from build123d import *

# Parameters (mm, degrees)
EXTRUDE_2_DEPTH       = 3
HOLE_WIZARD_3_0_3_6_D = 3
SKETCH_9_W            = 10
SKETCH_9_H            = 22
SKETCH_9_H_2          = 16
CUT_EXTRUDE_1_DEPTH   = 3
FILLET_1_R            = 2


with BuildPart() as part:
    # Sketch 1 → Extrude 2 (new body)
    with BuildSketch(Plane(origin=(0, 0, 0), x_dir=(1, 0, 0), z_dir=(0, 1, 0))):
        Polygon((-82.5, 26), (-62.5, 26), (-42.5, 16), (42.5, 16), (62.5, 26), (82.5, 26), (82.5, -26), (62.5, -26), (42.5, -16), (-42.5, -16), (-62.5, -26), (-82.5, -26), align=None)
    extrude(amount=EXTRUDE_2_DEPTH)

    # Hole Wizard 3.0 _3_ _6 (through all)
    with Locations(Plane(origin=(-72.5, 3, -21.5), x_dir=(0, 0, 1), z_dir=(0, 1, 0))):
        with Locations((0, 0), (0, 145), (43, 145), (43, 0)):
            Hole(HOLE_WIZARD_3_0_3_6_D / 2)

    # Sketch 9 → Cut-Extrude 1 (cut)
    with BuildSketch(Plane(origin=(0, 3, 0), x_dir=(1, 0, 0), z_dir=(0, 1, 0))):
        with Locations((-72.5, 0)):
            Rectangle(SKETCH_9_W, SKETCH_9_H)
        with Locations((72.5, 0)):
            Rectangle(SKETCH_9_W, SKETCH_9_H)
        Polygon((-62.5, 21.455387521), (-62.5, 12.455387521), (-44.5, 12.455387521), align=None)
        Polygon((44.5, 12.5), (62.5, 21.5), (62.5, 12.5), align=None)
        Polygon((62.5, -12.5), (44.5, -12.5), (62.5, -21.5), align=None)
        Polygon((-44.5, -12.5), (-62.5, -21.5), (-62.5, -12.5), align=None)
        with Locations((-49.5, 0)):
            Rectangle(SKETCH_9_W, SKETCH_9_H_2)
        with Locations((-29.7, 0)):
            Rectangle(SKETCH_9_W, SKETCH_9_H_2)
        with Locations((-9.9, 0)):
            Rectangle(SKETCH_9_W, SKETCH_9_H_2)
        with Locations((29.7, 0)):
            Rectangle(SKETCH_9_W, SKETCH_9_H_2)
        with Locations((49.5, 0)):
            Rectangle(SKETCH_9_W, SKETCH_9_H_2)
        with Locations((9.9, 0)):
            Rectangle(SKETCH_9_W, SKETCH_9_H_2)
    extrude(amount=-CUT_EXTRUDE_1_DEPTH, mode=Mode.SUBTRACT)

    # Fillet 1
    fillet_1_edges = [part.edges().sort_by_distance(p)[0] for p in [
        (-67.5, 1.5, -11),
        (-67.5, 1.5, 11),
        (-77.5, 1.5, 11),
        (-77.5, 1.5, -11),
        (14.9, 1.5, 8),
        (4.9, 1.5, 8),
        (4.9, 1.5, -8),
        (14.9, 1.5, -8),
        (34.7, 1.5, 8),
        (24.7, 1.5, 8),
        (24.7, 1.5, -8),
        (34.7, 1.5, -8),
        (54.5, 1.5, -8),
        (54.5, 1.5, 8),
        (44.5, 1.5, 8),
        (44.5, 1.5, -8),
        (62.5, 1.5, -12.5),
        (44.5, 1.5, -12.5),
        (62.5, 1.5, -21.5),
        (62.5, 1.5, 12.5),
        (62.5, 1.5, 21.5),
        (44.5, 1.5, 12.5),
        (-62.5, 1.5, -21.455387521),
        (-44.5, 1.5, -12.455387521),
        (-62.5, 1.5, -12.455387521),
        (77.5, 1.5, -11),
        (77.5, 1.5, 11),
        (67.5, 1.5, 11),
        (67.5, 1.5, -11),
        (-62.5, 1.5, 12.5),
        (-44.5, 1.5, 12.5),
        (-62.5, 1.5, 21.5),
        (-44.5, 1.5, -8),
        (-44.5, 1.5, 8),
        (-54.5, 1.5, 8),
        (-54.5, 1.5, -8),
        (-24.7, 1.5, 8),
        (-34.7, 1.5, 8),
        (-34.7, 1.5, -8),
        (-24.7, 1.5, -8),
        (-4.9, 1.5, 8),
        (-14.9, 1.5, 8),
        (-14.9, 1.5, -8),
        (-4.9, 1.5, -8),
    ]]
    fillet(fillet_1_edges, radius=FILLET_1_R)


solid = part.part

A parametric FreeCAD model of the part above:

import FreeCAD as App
import Part
import Sketcher

V = App.Vector
Q = App.Units.Quantity


def edges_at(feature, points):
    """Names of the edges that pass closest to the given points."""
    edges = feature.Shape.Edges
    near = lambda p: min(range(len(edges)), key=lambda i: edges[i].distToShape(Part.Vertex(*p))[0])
    return sorted({f"Edge{near(p) + 1}" for p in points})


def add_polygon(sketch, points):
    """Adds a closed chain of lines whose ends are joined by coincident constraints."""
    first, n = sketch.GeometryCount, len(points)
    for a, b in zip(points, points[1:] + points[:1]):
        sketch.addGeometry(Part.LineSegment(App.Vector(*a, 0), App.Vector(*b, 0)), False)
    for i in range(n):
        sketch.addConstraint(Sketcher.Constraint("Coincident", first + i, 2, first + (i + 1) % n, 1))

doc = App.newDocument("Part")
params = doc.addObject("Spreadsheet::Sheet", "Params")
for row, (alias, value) in enumerate([
    ("sketch1_width", "20 mm"),
    ("sketch1_width2", "85 mm"),
    ("sketch1_height", "52 mm"),
    ("pad1_length", "3 mm"),
    ("sketch2_diameter", "3 mm"),
    ("hole_diameter", "3 mm"),
    ("sketch3_width", "10 mm"),
    ("sketch3_width2", "18 mm"),
    ("sketch3_height", "22 mm"),
    ("sketch3_height2", "9 mm"),
    ("sketch3_height3", "16 mm"),
    ("pocket1_length", "3 mm"),
    ("fillet_radius", "2 mm"),
], start=1):
    params.set(f"A{row}", alias)
    params.set(f"B{row}", "=" + value)
    params.setAlias(f"B{row}", alias)

body = doc.addObject("PartDesign::Body", "Body")

sketch1 = doc.addObject("Sketcher::SketchObject", "Sketch")
body.addObject(sketch1)
sketch1.AttachmentSupport = (doc.XZ_Plane, [""])
sketch1.MapMode = "FlatFace"
add_polygon(sketch1, [(-62, -26), (-82, -26), (-82, 26), (-62, 26), (-42, 16), (42, 16), (62, 26), (82, 26), (82, -26), (62, -26), (42, -16), (-42, -16)])
sketch1.addConstraint([
    Sketcher.Constraint("Horizontal", 0),
    Sketcher.Constraint("Vertical", 1),
    Sketcher.Constraint("Horizontal", 2),
    Sketcher.Constraint("Horizontal", 4),
    Sketcher.Constraint("Horizontal", 6),
    Sketcher.Constraint("Vertical", 7),
    Sketcher.Constraint("Horizontal", 8),
    Sketcher.Constraint("Horizontal", 10),
    Sketcher.Constraint("Symmetric", 0, 2, 6, 2, -1, 1),
    Sketcher.Constraint("Symmetric", 2, 2, 8, 2, -1, 1),
    Sketcher.Constraint("Symmetric", 3, 2, 9, 2, -1, 1),
    Sketcher.Constraint("Symmetric", 2, 2, 5, 2, -2),
    Sketcher.Constraint("Parallel", 5, 11),
    Sketcher.Constraint("Vertical", 4, 2, 9, 2),
    Sketcher.Constraint("Vertical", 3, 2, 10, 2),
    Sketcher.Constraint("DistanceX", 0, 2, 0, 1, Q("20 mm")),
    Sketcher.Constraint("DistanceX", 4, 1, 4, 2, Q("85 mm")),
    Sketcher.Constraint("DistanceY", 1, 1, 1, 2, Q("52 mm")),
    Sketcher.Constraint("DistanceY", -1, 1, 3, 2, Q("16 mm")),
    Sketcher.Constraint("DistanceX", 2, 2, 3, 2, Q("20 mm")),
])
sketch1.setExpression("Constraints[27]", "Params.sketch1_width")
sketch1.setExpression("Constraints[28]", "Params.sketch1_width2")
sketch1.setExpression("Constraints[29]", "Params.sketch1_height")
pad1 = doc.addObject("PartDesign::Pad", "Pad")
body.addObject(pad1)
pad1.Profile = sketch1
pad1.setExpression("Length", "Params.pad1_length")
pad1.Reversed = True

sketch2 = doc.addObject("Sketcher::SketchObject", "Sketch001")
body.addObject(sketch2)
sketch2.AttachmentSupport = (doc.XZ_Plane, [""])
sketch2.MapMode = "FlatFace"
sketch2.AttachmentOffset = App.Placement(V(0, 0, -3), App.Rotation())
sketch2.addGeometry([
    Part.Circle(V(-72.5, -21.5, 0), V(0, 0, 1), 1.5),
    Part.Circle(V(72.5, -21.5, 0), V(0, 0, 1), 1.5),
    Part.Circle(V(72.5, 21.5, 0), V(0, 0, 1), 1.5),
    Part.Circle(V(-72.5, 21.5, 0), V(0, 0, 1), 1.5),
], False)
sketch2.addConstraint([
    Sketcher.Constraint("Equal", 0, 1),
    Sketcher.Constraint("Equal", 1, 2),
    Sketcher.Constraint("Equal", 2, 3),
    Sketcher.Constraint("Symmetric", 0, 3, 2, 3, -1, 1),
    Sketcher.Constraint("Symmetric", 1, 3, 3, 3, -1, 1),
    Sketcher.Constraint("Symmetric", 0, 3, 1, 3, -2),
    Sketcher.Constraint("Diameter", 0, Q("3 mm")),
    Sketcher.Constraint("DistanceX", 0, 3, 1, 3, Q("145 mm")),
    Sketcher.Constraint("DistanceY", 1, 3, 2, 3, Q("43 mm")),
])
sketch2.setExpression("Constraints[6]", "Params.sketch2_diameter")
doc.recompute()
hole = doc.addObject("PartDesign::Hole", "Hole")
body.addObject(hole)
hole.Profile = sketch2
hole.ThreadType = "None"
hole.setExpression("Diameter", "Params.hole_diameter")
hole.DepthType = "ThroughAll"
hole.Reversed = True

sketch3 = doc.addObject("Sketcher::SketchObject", "Sketch002")
body.addObject(sketch3)
sketch3.AttachmentSupport = (doc.XZ_Plane, [""])
sketch3.MapMode = "FlatFace"
sketch3.AttachmentOffset = App.Placement(V(0, 0, -3), App.Rotation())
add_polygon(sketch3, [(-78, -11), (-78, 11), (-68, 11), (-68, -11)])
add_polygon(sketch3, [(68, -11), (68, 11), (78, 11), (78, -11)])
add_polygon(sketch3, [(-62, -21), (-62, -12), (-44, -12)])
add_polygon(sketch3, [(62, -22), (44, -12), (62, -12)])
add_polygon(sketch3, [(62, 12), (44, 12), (62, 22)])
add_polygon(sketch3, [(-62, 22), (-44, 12), (-62, 12)])
add_polygon(sketch3, [(-54, -8), (-54, 8), (-44, 8), (-44, -8)])
add_polygon(sketch3, [(-35, -8), (-35, 8), (-25, 8), (-25, -8)])
add_polygon(sketch3, [(-15, -8), (-15, 8), (-5, 8), (-5, -8)])
add_polygon(sketch3, [(25, -8), (25, 8), (35, 8), (35, -8)])
add_polygon(sketch3, [(44, -8), (44, 8), (54, 8), (54, -8)])
add_polygon(sketch3, [(5, -8), (5, 8), (15, 8), (15, -8)])
sketch3.addConstraint([
    Sketcher.Constraint("Vertical", 0),
    Sketcher.Constraint("Horizontal", 1),
    Sketcher.Constraint("Vertical", 2),
    Sketcher.Constraint("Horizontal", 3),
    Sketcher.Constraint("Vertical", 4),
    Sketcher.Constraint("Horizontal", 5),
    Sketcher.Constraint("Vertical", 6),
    Sketcher.Constraint("Horizontal", 7),
    Sketcher.Constraint("Vertical", 8),
    Sketcher.Constraint("Horizontal", 9),
    Sketcher.Constraint("Horizontal", 12),
    Sketcher.Constraint("Vertical", 13),
    Sketcher.Constraint("Horizontal", 14),
    Sketcher.Constraint("Vertical", 16),
    Sketcher.Constraint("Horizontal", 18),
    Sketcher.Constraint("Vertical", 19),
    Sketcher.Constraint("Vertical", 20),
    Sketcher.Constraint("Horizontal", 21),
    Sketcher.Constraint("Vertical", 22),
    Sketcher.Constraint("Horizontal", 23),
    Sketcher.Constraint("Vertical", 24),
    Sketcher.Constraint("Horizontal", 25),
    Sketcher.Constraint("Vertical", 26),
    Sketcher.Constraint("Horizontal", 27),
    Sketcher.Constraint("Vertical", 28),
    Sketcher.Constraint("Horizontal", 29),
    Sketcher.Constraint("Vertical", 30),
    Sketcher.Constraint("Horizontal", 31),
    Sketcher.Constraint("Vertical", 32),
    Sketcher.Constraint("Horizontal", 33),
    Sketcher.Constraint("Vertical", 34),
    Sketcher.Constraint("Horizontal", 35),
    Sketcher.Constraint("Vertical", 36),
    Sketcher.Constraint("Horizontal", 37),
    Sketcher.Constraint("Vertical", 38),
    Sketcher.Constraint("Horizontal", 39),
    Sketcher.Constraint("Vertical", 40),
    Sketcher.Constraint("Horizontal", 41),
    Sketcher.Constraint("Vertical", 42),
    Sketcher.Constraint("Horizontal", 43),
    Sketcher.Constraint("Symmetric", 2, 2, 4, 2, -1, 1),
    Sketcher.Constraint("Symmetric", 0, 2, 6, 2, -1, 1),
    Sketcher.Constraint("Symmetric", 11, 2, 17, 2, -1, 1),
    Sketcher.Constraint("Symmetric", 13, 2, 19, 2, -1, 1),
    Sketcher.Constraint("Symmetric", 26, 2, 32, 2, -1, 1),
    Sketcher.Constraint("Symmetric", 24, 2, 34, 2, -1, 1),
    Sketcher.Constraint("Symmetric", 22, 2, 36, 2, -1, 1),
    Sketcher.Constraint("Symmetric", 20, 2, 38, 2, -1, 1),
    Sketcher.Constraint("Symmetric", 30, 2, 40, 2, -1, 1),
    Sketcher.Constraint("Symmetric", 28, 2, 42, 2, -1, 1),
    Sketcher.Constraint("Symmetric", 14, 2, 17, 2, -2),
    Sketcher.Constraint("Symmetric", 15, 2, 19, 2, -2),
    Sketcher.Constraint("Parallel", 10, 15),
    Sketcher.Constraint("Horizontal", 1, 2, 4, 2),
    Sketcher.Constraint("Horizontal", 21, 2, 24, 2),
    Sketcher.Constraint("Horizontal", 23, 2, 26, 2),
    Sketcher.Constraint("Horizontal", 25, 2, 28, 2),
    Sketcher.Constraint("Horizontal", 27, 2, 30, 2),
    Sketcher.Constraint("Horizontal", 29, 2, 32, 2),
    Sketcher.Constraint("Vertical", 9, 2, 17, 2),
    Sketcher.Constraint("Vertical", 10, 2, 18, 2),
    Sketcher.Constraint("Vertical", 17, 2, 21, 2),
    Sketcher.Constraint("Equal", 7, 21),
    Sketcher.Constraint("Equal", 23, 25),
    Sketcher.Constraint("Equal", 27, 29),
    Sketcher.Constraint("DistanceX", 1, 1, 1, 2, Q("10 mm")),
    Sketcher.Constraint("DistanceX", 9, 1, 9, 2, Q("18 mm")),
    Sketcher.Constraint("DistanceY", 0, 1, 0, 2, Q("22 mm")),
    Sketcher.Constraint("DistanceY", 8, 1, 8, 2, Q("9 mm")),
    Sketcher.Constraint("DistanceY", 20, 1, 20, 2, Q("16 mm")),
    Sketcher.Constraint("DistanceX", 1, 2, 4, 2, Q("135 mm")),
    Sketcher.Constraint("DistanceX", 2, 2, 8, 2, Q("5 mm")),
    Sketcher.Constraint("DistanceY", 11, 2, 14, 2, Q("25 mm")),
    Sketcher.Constraint("DistanceX", 24, 2, -1, 1, Q("34.7 mm")),
    Sketcher.Constraint("DistanceX", 28, 2, -1, 1, Q("14.9 mm")),
    Sketcher.Constraint("DistanceY", 8, 2, -1, 1, Q("12.455388 mm")),
])
sketch3.setExpression("Constraints[109]", "Params.sketch3_width")
sketch3.setExpression("Constraints[110]", "Params.sketch3_width2")
sketch3.setExpression("Constraints[111]", "Params.sketch3_height")
sketch3.setExpression("Constraints[112]", "Params.sketch3_height2")
sketch3.setExpression("Constraints[113]", "Params.sketch3_height3")
pocket1 = doc.addObject("PartDesign::Pocket", "Pocket")
body.addObject(pocket1)
pocket1.Profile = sketch3
pocket1.setExpression("Length", "Params.pocket1_length")
pocket1.Reversed = True
doc.recompute()

fillet = doc.addObject("PartDesign::Fillet", "Fillet")
body.addObject(fillet)
fillet.Base = (pocket1, edges_at(pocket1, [
    (-67.5, 1.5, -11),
    (-67.5, 1.5, 11),
    (-77.5, 1.5, 11),
    (-77.5, 1.5, -11),
    (14.9, 1.5, 8),
    (4.9, 1.5, 8),
    (4.9, 1.5, -8),
    (14.9, 1.5, -8),
    (34.7, 1.5, 8),
    (24.7, 1.5, 8),
    (24.7, 1.5, -8),
    (34.7, 1.5, -8),
    (54.5, 1.5, -8),
    (54.5, 1.5, 8),
    (44.5, 1.5, 8),
    (44.5, 1.5, -8),
    (62.5, 1.5, -12.5),
    (44.5, 1.5, -12.5),
    (62.5, 1.5, -21.5),
    (62.5, 1.5, 12.5),
    (62.5, 1.5, 21.5),
    (44.5, 1.5, 12.5),
    (-62.5, 1.5, -21.455),
    (-44.5, 1.5, -12.455),
    (-62.5, 1.5, -12.455),
    (77.5, 1.5, -11),
    (77.5, 1.5, 11),
    (67.5, 1.5, 11),
    (67.5, 1.5, -11),
    (-62.5, 1.5, 12.5),
    (-44.5, 1.5, 12.5),
    (-62.5, 1.5, 21.5),
    (-44.5, 1.5, -8),
    (-44.5, 1.5, 8),
    (-54.5, 1.5, 8),
    (-54.5, 1.5, -8),
    (-24.7, 1.5, 8),
    (-34.7, 1.5, 8),
    (-34.7, 1.5, -8),
    (-24.7, 1.5, -8),
    (-4.9, 1.5, 8),
    (-14.9, 1.5, 8),
    (-14.9, 1.5, -8),
    (-4.9, 1.5, -8),
]))
fillet.setExpression("Radius", "Params.fillet_radius")

doc.recompute()
